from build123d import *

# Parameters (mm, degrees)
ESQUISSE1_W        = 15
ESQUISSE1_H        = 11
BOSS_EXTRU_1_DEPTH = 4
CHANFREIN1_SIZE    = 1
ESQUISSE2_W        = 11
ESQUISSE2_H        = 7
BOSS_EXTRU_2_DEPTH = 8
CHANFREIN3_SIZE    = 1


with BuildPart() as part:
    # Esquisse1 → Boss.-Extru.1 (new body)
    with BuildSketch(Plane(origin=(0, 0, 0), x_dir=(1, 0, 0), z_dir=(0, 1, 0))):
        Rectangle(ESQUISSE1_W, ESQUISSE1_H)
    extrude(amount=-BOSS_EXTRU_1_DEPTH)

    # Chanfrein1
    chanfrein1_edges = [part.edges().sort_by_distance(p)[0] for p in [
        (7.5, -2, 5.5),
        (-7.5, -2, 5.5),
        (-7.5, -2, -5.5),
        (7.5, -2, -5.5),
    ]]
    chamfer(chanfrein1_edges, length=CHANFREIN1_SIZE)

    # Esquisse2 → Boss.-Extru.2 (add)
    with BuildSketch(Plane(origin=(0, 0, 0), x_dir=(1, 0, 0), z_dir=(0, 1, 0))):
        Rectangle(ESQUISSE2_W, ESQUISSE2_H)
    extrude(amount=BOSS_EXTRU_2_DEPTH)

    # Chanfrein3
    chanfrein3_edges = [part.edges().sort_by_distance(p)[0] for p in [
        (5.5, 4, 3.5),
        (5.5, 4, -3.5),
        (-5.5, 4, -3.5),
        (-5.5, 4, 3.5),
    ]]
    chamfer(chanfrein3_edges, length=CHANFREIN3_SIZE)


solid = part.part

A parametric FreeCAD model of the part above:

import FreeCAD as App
import Part
import Sketcher

V = App.Vector


def edges_at(feature, points):
    """Names of the edges that pass closest to the given points."""
    edges = feature.Shape.Edges
    near = lambda p: min(range(len(edges)), key=lambda i: edges[i].distToShape(Part.Vertex(*p))[0])
    return sorted({f"Edge{near(p) + 1}" for p in points})

doc = App.newDocument("Part")
body = doc.addObject("PartDesign::Body", "Body")

sketch1 = body.newObject("Sketcher::SketchObject", "Sketch")
sketch1.AttachmentSupport = (doc.getObject("XZ_Plane"), [""])
sketch1.MapMode = "FlatFace"
sketch1.addGeometry(Part.LineSegment(V(-8, -6, 0), V(-8, 6, 0)), False)
sketch1.addGeometry(Part.LineSegment(V(-8, 6, 0), V(8, 6, 0)), False)
sketch1.addGeometry(Part.LineSegment(V(8, 6, 0), V(8, -6, 0)), False)
sketch1.addGeometry(Part.LineSegment(V(8, -6, 0), V(-8, -6, 0)), False)
sketch1.addConstraint(Sketcher.Constraint("Coincident", 0, 2, 1, 1))
sketch1.addConstraint(Sketcher.Constraint("Coincident", 1, 2, 2, 1))
sketch1.addConstraint(Sketcher.Constraint("Coincident", 2, 2, 3, 1))
sketch1.addConstraint(Sketcher.Constraint("Coincident", 3, 2, 0, 1))
sketch1.addConstraint(Sketcher.Constraint("Vertical", 0))
sketch1.addConstraint(Sketcher.Constraint("Horizontal", 1))
sketch1.addConstraint(Sketcher.Constraint("Vertical", 2))
sketch1.addConstraint(Sketcher.Constraint("Horizontal", 3))
sketch1.addConstraint(Sketcher.Constraint("Symmetric", 0, 2, 2, 2, -1, 1))
sketch1.addConstraint(Sketcher.Constraint("DistanceX", 1, 1, 1, 2, 15.0))
sketch1.addConstraint(Sketcher.Constraint("DistanceY", 0, 1, 0, 2, 11.0))
pad1 = body.newObject("PartDesign::Pad", "Pad")
pad1.Profile = sketch1
pad1.Length = 4
doc.recompute()

chamfer = body.newObject("PartDesign::Chamfer", "Chamfer")
chamfer.Base = (pad1, edges_at(pad1, [
    (7.5, -2, 5.5),
    (-7.5, -2, 5.5),
    (-7.5, -2, -5.5),
    (7.5, -2, -5.5),
]))
chamfer.Size = 1

sketch2 = body.newObject("Sketcher::SketchObject", "Sketch001")
sketch2.AttachmentSupport = (doc.getObject("XZ_Plane"), [""])
sketch2.MapMode = "FlatFace"
sketch2.addGeometry(Part.LineSegment(V(-6, -4, 0), V(-6, 4, 0)), False)
sketch2.addGeometry(Part.LineSegment(V(-6, 4, 0), V(6, 4, 0)), False)
sketch2.addGeometry(Part.LineSegment(V(6, 4, 0), V(6, -4, 0)), False)
sketch2.addGeometry(Part.LineSegment(V(6, -4, 0), V(-6, -4, 0)), False)
sketch2.addConstraint(Sketcher.Constraint("Coincident", 0, 2, 1, 1))
sketch2.addConstraint(Sketcher.Constraint("Coincident", 1, 2, 2, 1))
sketch2.addConstraint(Sketcher.Constraint("Coincident", 2, 2, 3, 1))
sketch2.addConstraint(Sketcher.Constraint("Coincident", 3, 2, 0, 1))
sketch2.addConstraint(Sketcher.Constraint("Vertical", 0))
sketch2.addConstraint(Sketcher.Constraint("Horizontal", 1))
sketch2.addConstraint(Sketcher.Constraint("Vertical", 2))
sketch2.addConstraint(Sketcher.Constraint("Horizontal", 3))
sketch2.addConstraint(Sketcher.Constraint("Symmetric", 0, 2, 2, 2, -1, 1))
sketch2.addConstraint(Sketcher.Constraint("DistanceX", 1, 1, 1, 2, 11.0))
sketch2.addConstraint(Sketcher.Constraint("DistanceY", 0, 1, 0, 2, 7.0))
pad2 = body.newObject("PartDesign::Pad", "Pad001")
pad2.Profile = sketch2
pad2.Length = 8
pad2.Reversed = True
doc.recompute()

chamfer2 = body.newObject("PartDesign::Chamfer", "Chamfer001")
chamfer2.Base = (pad2, edges_at(pad2, [
    (5.5, 4, 3.5),
    (5.5, 4, -3.5),
    (-5.5, 4, -3.5),
    (-5.5, 4, 3.5),
]))
chamfer2.Size = 1

doc.recompute()
